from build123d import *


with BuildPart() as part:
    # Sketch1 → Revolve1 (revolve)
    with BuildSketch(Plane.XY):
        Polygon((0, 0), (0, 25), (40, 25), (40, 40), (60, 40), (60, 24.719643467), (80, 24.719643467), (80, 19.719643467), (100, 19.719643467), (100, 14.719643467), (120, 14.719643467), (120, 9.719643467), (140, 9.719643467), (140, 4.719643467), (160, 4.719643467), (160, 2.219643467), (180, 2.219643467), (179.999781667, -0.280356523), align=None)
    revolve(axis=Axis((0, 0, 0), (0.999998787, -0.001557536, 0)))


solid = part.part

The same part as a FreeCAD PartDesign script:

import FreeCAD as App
import Part
import Sketcher

V = App.Vector

doc = App.newDocument("Part")
body = doc.addObject("PartDesign::Body", "Body")

sketch1 = body.newObject("Sketcher::SketchObject", "Sketch")
sketch1.AttachmentSupport = (doc.getObject("XY_Plane"), [""])
sketch1.MapMode = "FlatFace"
sketch1.addGeometry(Part.LineSegment(V(0, 25, 0), V(0, 0, 0)), False)
sketch1.addGeometry(Part.LineSegment(V(0, 0, 0), V(179.999782, -0.280357, 0)), False)
sketch1.addGeometry(Part.LineSegment(V(179.999782, -0.280357, 0), V(180, 2.219643, 0)), False)
sketch1.addGeometry(Part.LineSegment(V(180, 2.219643, 0), V(160, 2.219643, 0)), False)
sketch1.addGeometry(Part.LineSegment(V(160, 2.219643, 0), V(160, 4.719643, 0)), False)
sketch1.addGeometry(Part.LineSegment(V(160, 4.719643, 0), V(140, 4.719643, 0)), False)
sketch1.addGeometry(Part.LineSegment(V(140, 4.719643, 0), V(140, 9.719643, 0)), False)
sketch1.addGeometry(Part.LineSegment(V(140, 9.719643, 0), V(120, 9.719643, 0)), False)
sketch1.addGeometry(Part.LineSegment(V(120, 9.719643, 0), V(120, 14.719643, 0)), False)
sketch1.addGeometry(Part.LineSegment(V(120, 14.719643, 0), V(100, 14.719643, 0)), False)
sketch1.addGeometry(Part.LineSegment(V(100, 14.719643, 0), V(100, 19.719643, 0)), False)
sketch1.addGeometry(Part.LineSegment(V(100, 19.719643, 0), V(80, 19.719643, 0)), False)
sketch1.addGeometry(Part.LineSegment(V(80, 19.719643, 0), V(80, 24.719643, 0)), False)
sketch1.addGeometry(Part.LineSegment(V(80, 24.719643, 0), V(60, 24.719643, 0)), False)
sketch1.addGeometry(Part.LineSegment(V(60, 24.719643, 0), V(60, 40, 0)), False)
sketch1.addGeometry(Part.LineSegment(V(60, 40, 0), V(40, 40, 0)), False)
sketch1.addGeometry(Part.LineSegment(V(40, 40, 0), V(40, 25, 0)), False)
sketch1.addGeometry(Part.LineSegment(V(40, 25, 0), V(0, 25, 0)), False)
sketch1.addGeometry(Part.LineSegment(V(-0.038938, 0.000061, 0), V(179.999782, -0.280356, 0)), True)
sketch1.addConstraint(Sketcher.Constraint("Coincident", 0, 2, 1, 1))
sketch1.addConstraint(Sketcher.Constraint("Coincident", 1, 2, 2, 1))
sketch1.addConstraint(Sketcher.Constraint("Coincident", 2, 2, 3, 1))
sketch1.addConstraint(Sketcher.Constraint("Coincident", 3, 2, 4, 1))
sketch1.addConstraint(Sketcher.Constraint("Coincident", 4, 2, 5, 1))
sketch1.addConstraint(Sketcher.Constraint("Coincident", 5, 2, 6, 1))
sketch1.addConstraint(Sketcher.Constraint("Coincident", 6, 2, 7, 1))
sketch1.addConstraint(Sketcher.Constraint("Coincident", 7, 2, 8, 1))
sketch1.addConstraint(Sketcher.Constraint("Coincident", 8, 2, 9, 1))
sketch1.addConstraint(Sketcher.Constraint("Coincident", 9, 2, 10, 1))
sketch1.addConstraint(Sketcher.Constraint("Coincident", 10, 2, 11, 1))
sketch1.addConstraint(Sketcher.Constraint("Coincident", 11, 2, 12, 1))
sketch1.addConstraint(Sketcher.Constraint("Coincident", 12, 2, 13, 1))
sketch1.addConstraint(Sketcher.Constraint("Coincident", 13, 2, 14, 1))
sketch1.addConstraint(Sketcher.Constraint("Coincident", 14, 2, 15, 1))
sketch1.addConstraint(Sketcher.Constraint("Coincident", 15, 2, 16, 1))
sketch1.addConstraint(Sketcher.Constraint("Coincident", 16, 2, 17, 1))
sketch1.addConstraint(Sketcher.Constraint("Coincident", 17, 2, 0, 1))
sketch1.addConstraint(Sketcher.Constraint("Vertical", 0))
sketch1.addConstraint(Sketcher.Constraint("Horizontal", 3))
sketch1.addConstraint(Sketcher.Constraint("Vertical", 4))
sketch1.addConstraint(Sketcher.Constraint("Horizontal", 5))
sketch1.addConstraint(Sketcher.Constraint("Vertical", 6))
sketch1.addConstraint(Sketcher.Constraint("Horizontal", 7))
sketch1.addConstraint(Sketcher.Constraint("Vertical", 8))
sketch1.addConstraint(Sketcher.Constraint("Horizontal", 9))
sketch1.addConstraint(Sketcher.Constraint("Vertical", 10))
sketch1.addConstraint(Sketcher.Constraint("Horizontal", 11))
sketch1.addConstraint(Sketcher.Constraint("Vertical", 12))
sketch1.addConstraint(Sketcher.Constraint("Horizontal", 13))
sketch1.addConstraint(Sketcher.Constraint("Vertical", 14))
sketch1.addConstraint(Sketcher.Constraint("Horizontal", 15))
sketch1.addConstraint(Sketcher.Constraint("Vertical", 16))
sketch1.addConstraint(Sketcher.Constraint("Horizontal", 17))
sketch1.addConstraint(Sketcher.Constraint("Coincident", 0, 2, -1, 1))
sketch1.addConstraint(Sketcher.Constraint("Coincident", 18, 2, 1, 2))
sketch1.addConstraint(Sketcher.Constraint("Parallel", 1, 18))
sketch1.addConstraint(Sketcher.Constraint("Equal", 3, 5))
sketch1.addConstraint(Sketcher.Constraint("Equal", 5, 7))
sketch1.addConstraint(Sketcher.Constraint("Equal", 7, 9))
sketch1.addConstraint(Sketcher.Constraint("Equal", 9, 11))
sketch1.addConstraint(Sketcher.Constraint("Equal", 11, 13))
sketch1.addConstraint(Sketcher.Constraint("Equal", 13, 15))
sketch1.addConstraint(Sketcher.Constraint("Equal", 6, 8))
sketch1.addConstraint(Sketcher.Constraint("Equal", 8, 10))
sketch1.addConstraint(Sketcher.Constraint("Equal", 10, 12))
sketch1.addConstraint(Sketcher.Constraint("DistanceX", 3, 2, 3, 1, 20.0))
sketch1.addConstraint(Sketcher.Constraint("DistanceX", 17, 2, 17, 1, 40.0))
sketch1.addConstraint(Sketcher.Constraint("DistanceY", 0, 2, 0, 1, 25.0))
sketch1.addConstraint(Sketcher.Constraint("DistanceY", 6, 1, 6, 2, 5.0))
sketch1.addConstraint(Sketcher.Constraint("DistanceY", 16, 2, 16, 1, 15.0))
sketch1.addConstraint(Sketcher.Constraint("Distance", 1, 180.0))
sketch1.addConstraint(Sketcher.Constraint("DistanceY", 4, 1, 4, 2, 2.5))
sketch1.addConstraint(Sketcher.Constraint("DistanceY", 1, 2, 4, 2, 5.0))
sketch1.addConstraint(Sketcher.Constraint("Distance", 18, 180.038938))
sketch1.addConstraint(Sketcher.Constraint("DistanceY", 14, 1, 14, 2, 15.280357))
revolution = body.newObject("PartDesign::Revolution", "Revolution")
revolution.Profile = sketch1
revolution.ReferenceAxis = (sketch1, ["Axis0"])
revolution.Angle = 360

doc.recompute()
